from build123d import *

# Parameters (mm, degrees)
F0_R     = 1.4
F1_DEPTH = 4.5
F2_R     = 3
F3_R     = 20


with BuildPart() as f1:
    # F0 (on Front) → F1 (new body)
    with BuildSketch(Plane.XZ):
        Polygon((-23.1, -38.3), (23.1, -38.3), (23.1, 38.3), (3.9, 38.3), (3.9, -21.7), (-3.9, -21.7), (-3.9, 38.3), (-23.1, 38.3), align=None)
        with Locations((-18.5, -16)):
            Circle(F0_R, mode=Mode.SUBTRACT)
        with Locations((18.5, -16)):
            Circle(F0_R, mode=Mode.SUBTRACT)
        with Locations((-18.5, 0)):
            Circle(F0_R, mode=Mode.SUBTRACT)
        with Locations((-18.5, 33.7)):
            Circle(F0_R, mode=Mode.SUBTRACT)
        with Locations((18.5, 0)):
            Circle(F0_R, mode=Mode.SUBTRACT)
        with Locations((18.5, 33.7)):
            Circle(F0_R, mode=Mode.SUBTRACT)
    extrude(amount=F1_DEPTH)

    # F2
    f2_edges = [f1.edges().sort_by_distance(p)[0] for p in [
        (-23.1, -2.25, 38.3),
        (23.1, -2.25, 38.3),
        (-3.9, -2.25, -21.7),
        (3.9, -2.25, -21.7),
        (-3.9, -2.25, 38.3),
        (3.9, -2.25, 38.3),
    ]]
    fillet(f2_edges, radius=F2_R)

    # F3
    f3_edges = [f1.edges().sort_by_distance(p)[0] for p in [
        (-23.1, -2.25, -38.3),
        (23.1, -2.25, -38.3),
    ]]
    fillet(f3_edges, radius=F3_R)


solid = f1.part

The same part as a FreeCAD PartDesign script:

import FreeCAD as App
import Part
import Sketcher

V = App.Vector


def edges_at(feature, points):
    """Names of the edges that pass closest to the given points."""
    edges = feature.Shape.Edges
    near = lambda p: min(range(len(edges)), key=lambda i: edges[i].distToShape(Part.Vertex(*p))[0])
    return sorted({f"Edge{near(p) + 1}" for p in points})

doc = App.newDocument("Part")
body = doc.addObject("PartDesign::Body", "Body")

sketch1 = body.newObject("Sketcher::SketchObject", "Sketch")
sketch1.AttachmentSupport = (doc.getObject("XZ_Plane"), [""])
sketch1.MapMode = "FlatFace"
sketch1.addGeometry([
    Part.LineSegment(V(-23.1, -38.3, 0), V(23.1, -38.3, 0)),
    Part.LineSegment(V(23.1, -38.3, 0), V(23.1, 38.3, 0)),
    Part.LineSegment(V(23.1, 38.3, 0), V(3.9, 38.3, 0)),
    Part.LineSegment(V(3.9, 38.3, 0), V(3.9, -21.7, 0)),
    Part.LineSegment(V(3.9, -21.7, 0), V(-3.9, -21.7, 0)),
    Part.LineSegment(V(-3.9, -21.7, 0), V(-3.9, 38.3, 0)),
    Part.LineSegment(V(-3.9, 38.3, 0), V(-23.1, 38.3, 0)),
    Part.LineSegment(V(-23.1, 38.3, 0), V(-23.1, -38.3, 0)),
    Part.Circle(V(-18.5, -16, 0), V(0, 0, 1), 1.4),
    Part.Circle(V(-18.5, 0, 0), V(0, 0, 1), 1.4),
    Part.Circle(V(18.5, -16, 0), V(0, 0, 1), 1.4),
    Part.Circle(V(18.5, 0, 0), V(0, 0, 1), 1.4),
    Part.Circle(V(-18.5, 33.7, 0), V(0, 0, 1), 1.4),
    Part.Circle(V(18.5, 33.7, 0), V(0, 0, 1), 1.4),
], False)
sketch1.addConstraint([
    Sketcher.Constraint("Coincident", 0, 2, 1, 1),
    Sketcher.Constraint("Coincident", 1, 2, 2, 1),
    Sketcher.Constraint("Coincident", 2, 2, 3, 1),
    Sketcher.Constraint("Coincident", 3, 2, 4, 1),
    Sketcher.Constraint("Coincident", 4, 2, 5, 1),
    Sketcher.Constraint("Coincident", 5, 2, 6, 1),
    Sketcher.Constraint("Coincident", 6, 2, 7, 1),
    Sketcher.Constraint("Coincident", 7, 2, 0, 1),
    Sketcher.Constraint("Horizontal", 0),
    Sketcher.Constraint("Vertical", 1),
    Sketcher.Constraint("Horizontal", 2),
    Sketcher.Constraint("Vertical", 3),
    Sketcher.Constraint("Horizontal", 4),
    Sketcher.Constraint("Vertical", 5),
    Sketcher.Constraint("Horizontal", 6),
    Sketcher.Constraint("Vertical", 7),
    Sketcher.Constraint("Equal", 8, 9),
    Sketcher.Constraint("Equal", 9, 10),
    Sketcher.Constraint("Equal", 10, 11),
    Sketcher.Constraint("Equal", 11, 12),
    Sketcher.Constraint("Equal", 12, 13),
    Sketcher.Constraint("Symmetric", 9, 3, 11, 3, -1, 1),
    Sketcher.Constraint("Symmetric", 0, 2, 6, 2, -1, 1),
    Sketcher.Constraint("Symmetric", 8, 3, 10, 3, -2),
    Sketcher.Constraint("Symmetric", 12, 3, 13, 3, -2),
    Sketcher.Constraint("Symmetric", 2, 2, 5, 2, -2),
    Sketcher.Constraint("PointOnObject", 9, 3, -1),
    Sketcher.Constraint("Vertical", 8, 3, 9, 3),
    Sketcher.Constraint("Vertical", 9, 3, 12, 3),
    Sketcher.Constraint("Diameter", 8, 2.8),
    Sketcher.Constraint("DistanceY", 3, 2, 3, 1, 60.0),
    Sketcher.Constraint("DistanceX", 0, 1, 0, 2, 46.2),
    Sketcher.Constraint("DistanceX", 2, 2, 2, 1, 19.2),
    Sketcher.Constraint("DistanceY", 1, 1, 1, 2, 76.6),
    Sketcher.Constraint("DistanceY", 8, 3, -1, 1, 16.0),
    Sketcher.Constraint("DistanceX", 8, 3, 10, 3, 37.0),
    Sketcher.Constraint("DistanceY", 0, 2, 13, 3, 72.0),
])
pad1 = body.newObject("PartDesign::Pad", "Pad")
pad1.Profile = sketch1
pad1.Length = 4.5
doc.recompute()

fillet = body.newObject("PartDesign::Fillet", "Fillet")
fillet.Base = (pad1, edges_at(pad1, [
    (-23.1, -2.25, 38.3),
    (23.1, -2.25, 38.3),
    (-3.9, -2.25, -21.7),
    (3.9, -2.25, -21.7),
    (-3.9, -2.25, 38.3),
    (3.9, -2.25, 38.3),
]))
fillet.Radius = 3
doc.recompute()

fillet2 = body.newObject("PartDesign::Fillet", "Fillet001")
fillet2.Base = (fillet, edges_at(fillet, [(-23.1, -2.25, -38.3), (23.1, -2.25, -38.3)]))
fillet2.Radius = 20

doc.recompute()
